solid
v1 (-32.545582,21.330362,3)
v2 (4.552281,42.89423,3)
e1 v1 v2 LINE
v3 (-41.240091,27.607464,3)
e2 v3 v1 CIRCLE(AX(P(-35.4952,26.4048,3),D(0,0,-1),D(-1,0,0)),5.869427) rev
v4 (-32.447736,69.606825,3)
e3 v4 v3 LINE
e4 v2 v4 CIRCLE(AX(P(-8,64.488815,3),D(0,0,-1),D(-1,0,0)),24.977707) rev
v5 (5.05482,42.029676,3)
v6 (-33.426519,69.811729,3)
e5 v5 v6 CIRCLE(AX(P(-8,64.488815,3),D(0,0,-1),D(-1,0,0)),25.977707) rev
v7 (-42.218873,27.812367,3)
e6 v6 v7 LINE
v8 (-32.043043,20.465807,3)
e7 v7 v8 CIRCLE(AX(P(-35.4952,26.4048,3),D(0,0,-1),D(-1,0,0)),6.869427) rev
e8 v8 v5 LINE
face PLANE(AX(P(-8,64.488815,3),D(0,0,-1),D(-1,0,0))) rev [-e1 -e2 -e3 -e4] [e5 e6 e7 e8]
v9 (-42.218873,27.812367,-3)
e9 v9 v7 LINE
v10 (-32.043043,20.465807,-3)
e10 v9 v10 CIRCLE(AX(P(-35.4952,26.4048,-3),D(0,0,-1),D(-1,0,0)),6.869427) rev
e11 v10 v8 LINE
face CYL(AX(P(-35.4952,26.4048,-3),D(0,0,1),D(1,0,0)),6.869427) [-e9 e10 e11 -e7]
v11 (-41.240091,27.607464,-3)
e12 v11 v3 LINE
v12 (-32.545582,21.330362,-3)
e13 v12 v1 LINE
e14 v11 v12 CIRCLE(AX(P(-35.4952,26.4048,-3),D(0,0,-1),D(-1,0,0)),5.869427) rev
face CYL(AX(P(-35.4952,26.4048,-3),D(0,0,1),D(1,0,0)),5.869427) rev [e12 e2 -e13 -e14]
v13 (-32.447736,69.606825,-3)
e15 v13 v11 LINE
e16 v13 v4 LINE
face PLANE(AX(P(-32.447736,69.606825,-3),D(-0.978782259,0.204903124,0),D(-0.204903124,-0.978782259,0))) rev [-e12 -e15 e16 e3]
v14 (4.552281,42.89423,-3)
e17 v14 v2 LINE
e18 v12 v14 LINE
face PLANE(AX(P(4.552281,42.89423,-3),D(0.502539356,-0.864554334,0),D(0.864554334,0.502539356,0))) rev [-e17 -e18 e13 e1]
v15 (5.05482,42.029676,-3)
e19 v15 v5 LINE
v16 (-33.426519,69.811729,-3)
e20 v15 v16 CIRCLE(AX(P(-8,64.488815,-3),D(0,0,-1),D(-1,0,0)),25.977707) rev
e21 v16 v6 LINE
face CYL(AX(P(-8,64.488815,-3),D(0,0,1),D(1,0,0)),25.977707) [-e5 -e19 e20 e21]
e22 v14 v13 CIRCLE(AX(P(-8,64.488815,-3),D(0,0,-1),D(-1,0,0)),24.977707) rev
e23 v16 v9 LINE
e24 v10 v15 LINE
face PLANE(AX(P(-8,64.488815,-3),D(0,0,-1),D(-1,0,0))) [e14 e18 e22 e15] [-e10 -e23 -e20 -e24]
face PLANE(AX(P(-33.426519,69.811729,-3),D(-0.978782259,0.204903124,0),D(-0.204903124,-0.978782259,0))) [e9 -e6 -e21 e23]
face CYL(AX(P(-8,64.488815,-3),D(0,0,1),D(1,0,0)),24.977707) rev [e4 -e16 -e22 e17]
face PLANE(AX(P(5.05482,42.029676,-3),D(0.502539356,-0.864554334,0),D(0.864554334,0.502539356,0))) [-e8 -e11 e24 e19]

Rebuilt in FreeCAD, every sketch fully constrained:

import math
import FreeCAD as App
import Part
import Sketcher
from FreeCAD import Vector
Q = App.Units.Quantity

doc = App.newDocument("Part")
body = doc.addObject("PartDesign::Body", "Body")

# Sketch on XY plane
sketch1 = doc.addObject("Sketcher::SketchObject", "Sketch")
body.addObject(sketch1)
sketch1.AttachmentSupport = (doc.XY_Plane, [""])
sketch1.MapMode = "FlatFace"
sketch1.addGeometry([
    Part.LineSegment(Vector(-33, 70, 0), Vector(-42, 28, 0)),  # 0
    Part.ArcOfCircle(Part.Circle(Vector(-35, 26, 0), Vector(0, 0, 1), 7), math.radians(168), math.radians(300)),  # 1
    Part.LineSegment(Vector(-32, 20, 0), Vector(5, 42, 0)),  # 2
    Part.ArcOfCircle(Part.Circle(Vector(-8, 64, 0), Vector(0, 0, 1), 26), math.radians(-60), math.radians(168)),  # 3
    Part.LineSegment(Vector(-41, 28, 0), Vector(-32, 70, 0)),  # 4
    Part.ArcOfCircle(Part.Circle(Vector(-8, 64, 0), Vector(0, 0, 1), 25), math.radians(-60), math.radians(168)),  # 5
    Part.LineSegment(Vector(5, 43, 0), Vector(-33, 21, 0)),  # 6
    Part.ArcOfCircle(Part.Circle(Vector(-35, 26, 0), Vector(0, 0, 1), 6), math.radians(168), math.radians(300)),  # 7
], False)
sketch1.addConstraint([
    Sketcher.Constraint("Tangent", 0, 2, 1, 1),
    Sketcher.Constraint("Tangent", 1, 2, 2, 1),
    Sketcher.Constraint("Tangent", 2, 2, 3, 1),
    Sketcher.Constraint("Tangent", 3, 2, 0, 1),
    Sketcher.Constraint("Tangent", 4, 2, 5, 2),
    Sketcher.Constraint("Tangent", 5, 1, 6, 1),
    Sketcher.Constraint("Tangent", 6, 2, 7, 2),
    Sketcher.Constraint("Tangent", 7, 1, 4, 1),
    Sketcher.Constraint("Coincident", 5, 3, 3, 3),
    Sketcher.Constraint("Coincident", 7, 3, 1, 3),
    Sketcher.Constraint("Parallel", 0, 4),
    Sketcher.Constraint("DistanceX", 3, 3, -1, 1, Q("8 mm")),
    Sketcher.Constraint("Radius", 1, Q("6.869427 mm")),
    Sketcher.Constraint("Radius", 3, Q("25.977707 mm")),
    Sketcher.Constraint("Radius", 5, Q("24.977707 mm")),
    Sketcher.Constraint("DistanceX", 1, 3, -1, 1, Q("35.4952 mm")),
    Sketcher.Constraint("DistanceY", -1, 1, 1, 3, Q("26.4048 mm")),
    Sketcher.Constraint("Distance", 0, Q("42.909811 mm")),
])
pad1 = doc.addObject("PartDesign::Pad", "Pad")
body.addObject(pad1)
pad1.Profile = sketch1
pad1.Type = "TwoLengths"
pad1.Length = 3
pad1.Length2 = 3

doc.recompute()
